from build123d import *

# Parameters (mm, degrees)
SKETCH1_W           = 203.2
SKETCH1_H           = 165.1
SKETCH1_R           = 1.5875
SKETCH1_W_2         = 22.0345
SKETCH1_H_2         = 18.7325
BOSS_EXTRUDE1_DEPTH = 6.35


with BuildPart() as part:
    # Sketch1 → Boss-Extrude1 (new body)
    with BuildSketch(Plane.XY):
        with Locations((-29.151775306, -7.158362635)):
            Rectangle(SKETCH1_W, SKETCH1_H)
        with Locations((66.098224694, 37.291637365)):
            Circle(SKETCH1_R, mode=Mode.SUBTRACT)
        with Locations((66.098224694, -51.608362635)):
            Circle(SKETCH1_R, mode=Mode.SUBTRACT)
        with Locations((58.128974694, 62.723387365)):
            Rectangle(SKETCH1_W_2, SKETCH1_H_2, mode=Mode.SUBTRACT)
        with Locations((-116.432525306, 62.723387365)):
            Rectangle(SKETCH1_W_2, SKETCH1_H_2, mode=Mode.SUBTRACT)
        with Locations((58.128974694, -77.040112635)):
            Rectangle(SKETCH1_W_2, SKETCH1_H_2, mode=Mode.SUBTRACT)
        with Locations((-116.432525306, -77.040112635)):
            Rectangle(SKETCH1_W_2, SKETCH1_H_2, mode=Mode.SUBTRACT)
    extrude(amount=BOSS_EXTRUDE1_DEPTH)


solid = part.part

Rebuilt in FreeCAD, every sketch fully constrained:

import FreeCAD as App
import Part
import Sketcher

V = App.Vector
Q = App.Units.Quantity

doc = App.newDocument("Part")
body = doc.addObject("PartDesign::Body", "Body")

# Sketch on XY plane
sketch1 = body.newObject("Sketcher::SketchObject", "Sketch")
sketch1.AttachmentSupport = (doc.getObject("XY_Plane"), [""])
sketch1.MapMode = "FlatFace"
sketch1.addGeometry(Part.LineSegment(V(-130.8, 75.4, 0), V(-130.8, -89.7, 0)), False)
sketch1.addGeometry(Part.LineSegment(V(-130.8, -89.7, 0), V(72.4, -89.7, 0)), False)
sketch1.addGeometry(Part.LineSegment(V(72.4, -89.7, 0), V(72.4, 75.4, 0)), False)
sketch1.addGeometry(Part.LineSegment(V(72.4, 75.4, 0), V(-130.8, 75.4, 0)), False)
sketch1.addGeometry(Part.LineSegment(V(-105.4, -86.4, 0), V(-127.4, -86.4, 0)), False)
sketch1.addGeometry(Part.LineSegment(V(-127.4, -86.4, 0), V(-127.4, -67.7, 0)), False)
sketch1.addGeometry(Part.LineSegment(V(-127.4, -67.7, 0), V(-105.4, -67.7, 0)), False)
sketch1.addGeometry(Part.LineSegment(V(-105.4, -67.7, 0), V(-105.4, -86.4, 0)), False)
sketch1.addGeometry(Part.LineSegment(V(69.1, -86.4, 0), V(47.1, -86.4, 0)), False)
sketch1.addGeometry(Part.LineSegment(V(47.1, -86.4, 0), V(47.1, -67.7, 0)), False)
sketch1.addGeometry(Part.LineSegment(V(47.1, -67.7, 0), V(69.1, -67.7, 0)), False)
sketch1.addGeometry(Part.LineSegment(V(69.1, -67.7, 0), V(69.1, -86.4, 0)), False)
sketch1.addGeometry(Part.Circle(V(66.1, -51.6, 0), V(0, 0, 1), 1.6), False)
sketch1.addGeometry(Part.LineSegment(V(-105.4, 53.4, 0), V(-127.4, 53.4, 0)), False)
sketch1.addGeometry(Part.LineSegment(V(-127.4, 53.4, 0), V(-127.4, 72.1, 0)), False)
sketch1.addGeometry(Part.LineSegment(V(-127.4, 72.1, 0), V(-105.4, 72.1, 0)), False)
sketch1.addGeometry(Part.LineSegment(V(-105.4, 72.1, 0), V(-105.4, 53.4, 0)), False)
sketch1.addGeometry(Part.Circle(V(66.1, 37.3, 0), V(0, 0, 1), 1.6), False)
sketch1.addGeometry(Part.LineSegment(V(69.1, 53.4, 0), V(47.1, 53.4, 0)), False)
sketch1.addGeometry(Part.LineSegment(V(47.1, 53.4, 0), V(47.1, 72.1, 0)), False)
sketch1.addGeometry(Part.LineSegment(V(47.1, 72.1, 0), V(69.1, 72.1, 0)), False)
sketch1.addGeometry(Part.LineSegment(V(69.1, 72.1, 0), V(69.1, 53.4, 0)), False)
sketch1.addConstraint(Sketcher.Constraint("Coincident", 0, 2, 1, 1))
sketch1.addConstraint(Sketcher.Constraint("Coincident", 1, 2, 2, 1))
sketch1.addConstraint(Sketcher.Constraint("Coincident", 2, 2, 3, 1))
sketch1.addConstraint(Sketcher.Constraint("Coincident", 3, 2, 0, 1))
sketch1.addConstraint(Sketcher.Constraint("Coincident", 4, 2, 5, 1))
sketch1.addConstraint(Sketcher.Constraint("Coincident", 5, 2, 6, 1))
sketch1.addConstraint(Sketcher.Constraint("Coincident", 6, 2, 7, 1))
sketch1.addConstraint(Sketcher.Constraint("Coincident", 7, 2, 4, 1))
sketch1.addConstraint(Sketcher.Constraint("Coincident", 8, 2, 9, 1))
sketch1.addConstraint(Sketcher.Constraint("Coincident", 9, 2, 10, 1))
sketch1.addConstraint(Sketcher.Constraint("Coincident", 10, 2, 11, 1))
sketch1.addConstraint(Sketcher.Constraint("Coincident", 11, 2, 8, 1))
sketch1.addConstraint(Sketcher.Constraint("Coincident", 13, 2, 14, 1))
sketch1.addConstraint(Sketcher.Constraint("Coincident", 14, 2, 15, 1))
sketch1.addConstraint(Sketcher.Constraint("Coincident", 15, 2, 16, 1))
sketch1.addConstraint(Sketcher.Constraint("Coincident", 16, 2, 13, 1))
sketch1.addConstraint(Sketcher.Constraint("Coincident", 18, 2, 19, 1))
sketch1.addConstraint(Sketcher.Constraint("Coincident", 19, 2, 20, 1))
sketch1.addConstraint(Sketcher.Constraint("Coincident", 20, 2, 21, 1))
sketch1.addConstraint(Sketcher.Constraint("Coincident", 21, 2, 18, 1))
sketch1.addConstraint(Sketcher.Constraint("Vertical", 0))
sketch1.addConstraint(Sketcher.Constraint("Horizontal", 1))
sketch1.addConstraint(Sketcher.Constraint("Vertical", 2))
sketch1.addConstraint(Sketcher.Constraint("Horizontal", 3))
sketch1.addConstraint(Sketcher.Constraint("Horizontal", 4))
sketch1.addConstraint(Sketcher.Constraint("Vertical", 5))
sketch1.addConstraint(Sketcher.Constraint("Horizontal", 6))
sketch1.addConstraint(Sketcher.Constraint("Vertical", 7))
sketch1.addConstraint(Sketcher.Constraint("Horizontal", 8))
sketch1.addConstraint(Sketcher.Constraint("Vertical", 9))
sketch1.addConstraint(Sketcher.Constraint("Horizontal", 10))
sketch1.addConstraint(Sketcher.Constraint("Vertical", 11))
sketch1.addConstraint(Sketcher.Constraint("Horizontal", 13))
sketch1.addConstraint(Sketcher.Constraint("Vertical", 14))
sketch1.addConstraint(Sketcher.Constraint("Horizontal", 15))
sketch1.addConstraint(Sketcher.Constraint("Vertical", 16))
sketch1.addConstraint(Sketcher.Constraint("Horizontal", 18))
sketch1.addConstraint(Sketcher.Constraint("Vertical", 19))
sketch1.addConstraint(Sketcher.Constraint("Horizontal", 20))
sketch1.addConstraint(Sketcher.Constraint("Vertical", 21))
sketch1.addConstraint(Sketcher.Constraint("Equal", 12, 17))
sketch1.addConstraint(Sketcher.Constraint("Horizontal", 7, 2, 8, 2))
sketch1.addConstraint(Sketcher.Constraint("Horizontal", 6, 2, 9, 2))
sketch1.addConstraint(Sketcher.Constraint("Horizontal", 16, 2, 18, 2))
sketch1.addConstraint(Sketcher.Constraint("Horizontal", 15, 2, 19, 2))
sketch1.addConstraint(Sketcher.Constraint("Vertical", 12, 3, 17, 3))
sketch1.addConstraint(Sketcher.Constraint("Vertical", 5, 2, 13, 2))
sketch1.addConstraint(Sketcher.Constraint("Vertical", 7, 2, 15, 2))
sketch1.addConstraint(Sketcher.Constraint("Vertical", 9, 2, 18, 2))
sketch1.addConstraint(Sketcher.Constraint("Vertical", 11, 2, 20, 2))
sketch1.addConstraint(Sketcher.Constraint("Equal", 6, 8))
sketch1.addConstraint(Sketcher.Constraint("Equal", 11, 14))
sketch1.addConstraint(Sketcher.Constraint("DistanceX", 1, 1, 1, 2, Q("8 in")))
sketch1.addConstraint(Sketcher.Constraint("Diameter", 12, Q("0.125 in")))
sketch1.addConstraint(Sketcher.Constraint("DistanceY", 0, 2, 0, 1, Q("6.5 in")))
sketch1.addConstraint(Sketcher.Constraint("DistanceY", 0, 2, 17, 3, Q("5 in")))
sketch1.addConstraint(Sketcher.Constraint("DistanceY", 12, 3, 2, 2, Q("5 in")))
sketch1.addConstraint(Sketcher.Constraint("DistanceX", 0, 2, 12, 3, Q("7.75 in")))
sketch1.addConstraint(Sketcher.Constraint("DistanceX", 0, 2, 4, 2, Q("0.13 in")))
sketch1.addConstraint(Sketcher.Constraint("DistanceY", 0, 2, 4, 2, Q("0.13 in")))
sketch1.addConstraint(Sketcher.Constraint("DistanceX", 12, 3, 10, 2, Q("0.12 in")))
sketch1.addConstraint(Sketcher.Constraint("DistanceY", 14, 2, 3, 2, Q("0.13 in")))
sketch1.addConstraint(Sketcher.Constraint("DistanceX", 4, 2, 4, 1, Q("0.8675 in")))
sketch1.addConstraint(Sketcher.Constraint("DistanceY", 5, 1, 5, 2, Q("0.7375 in")))
sketch1.addConstraint(Sketcher.Constraint("DistanceX", -1, 1, 12, 3, 66.098225))
sketch1.addConstraint(Sketcher.Constraint("DistanceY", 12, 3, -1, 1, 51.608363))
pad1 = body.newObject("PartDesign::Pad", "Pad")
pad1.Profile = sketch1
pad1.Length = Q("0.25 in")

doc.recompute()
